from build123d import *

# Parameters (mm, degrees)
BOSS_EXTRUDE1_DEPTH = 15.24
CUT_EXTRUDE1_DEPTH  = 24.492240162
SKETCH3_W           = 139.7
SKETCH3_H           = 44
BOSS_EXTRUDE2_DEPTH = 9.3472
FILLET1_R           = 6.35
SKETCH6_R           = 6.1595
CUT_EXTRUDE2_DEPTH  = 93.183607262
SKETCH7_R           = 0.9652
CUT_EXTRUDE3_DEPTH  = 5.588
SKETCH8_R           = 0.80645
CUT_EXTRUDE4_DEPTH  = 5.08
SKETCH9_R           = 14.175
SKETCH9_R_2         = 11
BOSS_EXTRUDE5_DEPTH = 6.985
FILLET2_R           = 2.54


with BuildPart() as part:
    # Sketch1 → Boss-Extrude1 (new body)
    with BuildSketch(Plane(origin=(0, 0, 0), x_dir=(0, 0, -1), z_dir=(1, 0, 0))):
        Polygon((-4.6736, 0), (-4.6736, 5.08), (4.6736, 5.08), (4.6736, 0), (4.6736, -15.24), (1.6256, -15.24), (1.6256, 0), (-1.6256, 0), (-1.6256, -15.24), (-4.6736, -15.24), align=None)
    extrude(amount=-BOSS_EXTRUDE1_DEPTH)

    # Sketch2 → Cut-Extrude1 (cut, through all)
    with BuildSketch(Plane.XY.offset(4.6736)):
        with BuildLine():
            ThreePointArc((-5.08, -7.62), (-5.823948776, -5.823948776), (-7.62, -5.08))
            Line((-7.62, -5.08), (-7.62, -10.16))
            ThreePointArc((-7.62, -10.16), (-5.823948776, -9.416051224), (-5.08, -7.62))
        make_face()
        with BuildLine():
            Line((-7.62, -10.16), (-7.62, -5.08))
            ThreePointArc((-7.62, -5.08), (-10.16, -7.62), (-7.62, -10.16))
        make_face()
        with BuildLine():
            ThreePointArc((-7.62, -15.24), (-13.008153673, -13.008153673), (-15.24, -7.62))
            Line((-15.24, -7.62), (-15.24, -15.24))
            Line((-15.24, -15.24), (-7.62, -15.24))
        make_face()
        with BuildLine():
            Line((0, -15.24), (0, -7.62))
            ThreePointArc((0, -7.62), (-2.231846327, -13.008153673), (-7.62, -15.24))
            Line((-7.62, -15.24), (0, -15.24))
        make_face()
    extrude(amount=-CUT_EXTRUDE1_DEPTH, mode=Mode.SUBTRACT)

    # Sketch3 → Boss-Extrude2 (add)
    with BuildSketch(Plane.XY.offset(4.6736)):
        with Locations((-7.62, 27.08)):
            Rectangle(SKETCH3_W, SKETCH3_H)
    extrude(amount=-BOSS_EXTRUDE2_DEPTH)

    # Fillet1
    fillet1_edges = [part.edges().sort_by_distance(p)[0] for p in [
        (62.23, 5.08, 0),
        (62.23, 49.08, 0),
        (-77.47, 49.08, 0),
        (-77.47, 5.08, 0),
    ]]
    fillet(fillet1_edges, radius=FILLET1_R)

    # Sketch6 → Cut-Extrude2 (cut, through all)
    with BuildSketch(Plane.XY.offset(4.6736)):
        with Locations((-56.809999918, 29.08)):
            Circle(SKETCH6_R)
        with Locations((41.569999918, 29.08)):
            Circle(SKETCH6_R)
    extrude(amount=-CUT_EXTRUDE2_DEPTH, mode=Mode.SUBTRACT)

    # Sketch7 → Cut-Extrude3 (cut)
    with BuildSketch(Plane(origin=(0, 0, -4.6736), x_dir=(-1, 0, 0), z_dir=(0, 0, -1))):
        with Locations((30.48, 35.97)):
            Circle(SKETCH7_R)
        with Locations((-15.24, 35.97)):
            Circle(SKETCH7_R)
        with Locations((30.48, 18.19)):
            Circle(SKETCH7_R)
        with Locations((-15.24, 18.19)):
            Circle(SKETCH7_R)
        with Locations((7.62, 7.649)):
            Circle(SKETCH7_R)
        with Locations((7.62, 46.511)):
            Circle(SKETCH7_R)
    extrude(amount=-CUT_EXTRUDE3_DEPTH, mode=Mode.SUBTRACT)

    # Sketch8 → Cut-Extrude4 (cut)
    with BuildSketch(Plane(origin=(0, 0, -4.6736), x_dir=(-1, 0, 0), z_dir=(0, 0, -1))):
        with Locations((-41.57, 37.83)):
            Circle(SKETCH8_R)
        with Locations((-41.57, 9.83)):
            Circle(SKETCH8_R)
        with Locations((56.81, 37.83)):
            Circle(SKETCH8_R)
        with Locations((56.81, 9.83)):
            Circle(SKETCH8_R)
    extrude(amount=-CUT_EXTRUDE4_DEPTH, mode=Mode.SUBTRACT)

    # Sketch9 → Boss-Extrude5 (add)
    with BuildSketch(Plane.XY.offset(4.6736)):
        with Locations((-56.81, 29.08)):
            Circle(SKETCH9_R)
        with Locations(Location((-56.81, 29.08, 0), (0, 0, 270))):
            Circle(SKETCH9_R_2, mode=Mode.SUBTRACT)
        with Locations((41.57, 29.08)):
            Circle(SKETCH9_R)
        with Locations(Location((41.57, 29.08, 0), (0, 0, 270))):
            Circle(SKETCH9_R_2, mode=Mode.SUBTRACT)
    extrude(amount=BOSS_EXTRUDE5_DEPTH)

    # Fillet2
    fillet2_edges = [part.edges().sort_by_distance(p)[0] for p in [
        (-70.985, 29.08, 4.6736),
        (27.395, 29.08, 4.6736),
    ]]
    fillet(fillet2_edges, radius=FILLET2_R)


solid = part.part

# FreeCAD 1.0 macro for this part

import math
import FreeCAD as App
import Part
import Sketcher
from FreeCAD import Vector
Q = App.Units.Quantity


def edges_at(feature, points):
    """Names of the edges that pass closest to the given points."""
    edges = feature.Shape.Edges
    near = lambda p: min(range(len(edges)), key=lambda i: edges[i].distToShape(Part.Vertex(*p))[0])
    return sorted({f"Edge{near(p) + 1}" for p in points})


def add_polygon(sketch, points):
    """Adds a closed chain of lines whose ends are joined by coincident constraints."""
    first, n = sketch.GeometryCount, len(points)
    for a, b in zip(points, points[1:] + points[:1]):
        sketch.addGeometry(Part.LineSegment(App.Vector(*a, 0), App.Vector(*b, 0)), False)
    for i in range(n):
        sketch.addConstraint(Sketcher.Constraint("Coincident", first + i, 2, first + (i + 1) % n, 1))

doc = App.newDocument("Part")
body = doc.addObject("PartDesign::Body", "Body")

# Sketch on YZ plane
sketch1 = body.newObject("Sketcher::SketchObject", "Sketch")
sketch1.AttachmentSupport = (doc.getObject("YZ_Plane"), [""])
sketch1.MapMode = "FlatFace"
add_polygon(sketch1, [(5.08, 4.6736), (-15.24, 4.6736), (-15.24, 1.6256), (0, 1.6256), (0, -1.6256), (-15.24, -1.6256), (-15.24, -4.6736), (5.08, -4.6736)])  # lines 0-7
sketch1.addConstraint(Sketcher.Constraint("Horizontal", 0))
sketch1.addConstraint(Sketcher.Constraint("Vertical", 1))
sketch1.addConstraint(Sketcher.Constraint("Horizontal", 2))
sketch1.addConstraint(Sketcher.Constraint("Vertical", 3))
sketch1.addConstraint(Sketcher.Constraint("Horizontal", 4))
sketch1.addConstraint(Sketcher.Constraint("Vertical", 5))
sketch1.addConstraint(Sketcher.Constraint("Horizontal", 6))
sketch1.addConstraint(Sketcher.Constraint("Vertical", 7))
sketch1.addConstraint(Sketcher.Constraint("Symmetric", 2, 2, 3, 2, -1, 1))
sketch1.addConstraint(Sketcher.Constraint("Symmetric", 0, 2, 5, 2, -1))
sketch1.addConstraint(Sketcher.Constraint("DistanceX", 0, 2, 0, 1, Q("0.8 in")))
sketch1.addConstraint(Sketcher.Constraint("DistanceX", 2, 1, 2, 2, Q("0.6 in")))
sketch1.addConstraint(Sketcher.Constraint("DistanceY", 1, 2, 1, 1, Q("0.12 in")))
sketch1.addConstraint(Sketcher.Constraint("DistanceY", 3, 2, 3, 1, Q("0.128 in")))
pad1 = body.newObject("PartDesign::Pad", "Pad")
pad1.Profile = sketch1
pad1.Length = Q("0.6 in")
pad1.Reversed = True

# Sketch on XY plane
sketch2 = body.newObject("Sketcher::SketchObject", "Sketch001")
sketch2.AttachmentSupport = (doc.getObject("XY_Plane"), [""])
sketch2.MapMode = "FlatFace"
sketch2.AttachmentOffset = App.Placement(Vector(0, 0, 0.184 * 25.4), App.Rotation())
sketch2.addGeometry(Part.ArcOfCircle(Part.Circle(Vector(-7.62, -7.62, 0), Vector(0, 0, 1), 2.54), math.radians(0), math.radians(90)), False)
sketch2.addGeometry(Part.ArcOfCircle(Part.Circle(Vector(-7.62, -7.62, 0), Vector(0, 0, 1), 2.54), math.radians(90), math.radians(270)), False)
sketch2.addGeometry(Part.ArcOfCircle(Part.Circle(Vector(-7.62, -7.62, 0), Vector(0, 0, 1), 2.54), math.radians(-90), math.radians(0)), False)
sketch2.addGeometry(Part.ArcOfCircle(Part.Circle(Vector(-7.62, -7.62, 0), Vector(0, 0, 1), 7.62), math.radians(180), math.radians(270)), False)
sketch2.addGeometry(Part.LineSegment(Vector(-15.24, -7.62, 0), Vector(-15.24, -15.24, 0)), False)
sketch2.addGeometry(Part.LineSegment(Vector(-15.24, -15.24, 0), Vector(-7.62, -15.24, 0)), False)
sketch2.addGeometry(Part.LineSegment(Vector(0, -15.24, 0), Vector(0, -7.62, 0)), False)
sketch2.addGeometry(Part.ArcOfCircle(Part.Circle(Vector(-7.62, -7.62, 0), Vector(0, 0, 1), 7.62), math.radians(-90), math.radians(0)), False)
sketch2.addGeometry(Part.LineSegment(Vector(-7.62, -15.24, 0), Vector(0, -15.24, 0)), False)
sketch2.addConstraint(Sketcher.Constraint("Tangent", 0, 2, 1, 1))
sketch2.addConstraint(Sketcher.Constraint("Tangent", 1, 2, 2, 1))
sketch2.addConstraint(Sketcher.Constraint("Tangent", 2, 2, 0, 1))
sketch2.addConstraint(Sketcher.Constraint("Tangent", 3, 1, 4, 1))
sketch2.addConstraint(Sketcher.Constraint("Coincident", 4, 2, 5, 1))
sketch2.addConstraint(Sketcher.Constraint("Tangent", 5, 2, 3, 2))
sketch2.addConstraint(Sketcher.Constraint("Tangent", 6, 2, 7, 2))
sketch2.addConstraint(Sketcher.Constraint("Tangent", 7, 1, 8, 1))
sketch2.addConstraint(Sketcher.Constraint("Coincident", 8, 2, 6, 1))
sketch2.addConstraint(Sketcher.Constraint("Vertical", 4))
sketch2.addConstraint(Sketcher.Constraint("Horizontal", 5))
sketch2.addConstraint(Sketcher.Constraint("Vertical", 6))
sketch2.addConstraint(Sketcher.Constraint("Horizontal", 8))
sketch2.addConstraint(Sketcher.Constraint("Coincident", 3, 3, 0, 3))
sketch2.addConstraint(Sketcher.Constraint("Coincident", 7, 3, 0, 3))
sketch2.addConstraint(Sketcher.Constraint("Equal", 3, 7))
sketch2.addConstraint(Sketcher.Constraint("PointOnObject", 6, 2, -2))
sketch2.addConstraint(Sketcher.Constraint("Horizontal", 7, 3, 2, 2))
sketch2.addConstraint(Sketcher.Constraint("Vertical", 7, 3, 0, 2))
sketch2.addConstraint(Sketcher.Constraint("Vertical", 0, 2, 1, 2))
sketch2.addConstraint(Sketcher.Constraint("Radius", 0, Q("0.1 in")))
sketch2.addConstraint(Sketcher.Constraint("Radius", 3, Q("0.3 in")))
sketch2.addConstraint(Sketcher.Constraint("DistanceY", 0, 3, -1, 1, Q("0.3 in")))
pocket1 = body.newObject("PartDesign::Pocket", "Pocket")
pocket1.Profile = sketch2
pocket1.Type = "ThroughAll"

# Sketch on XY plane
sketch3 = body.newObject("Sketcher::SketchObject", "Sketch002")
sketch3.AttachmentSupport = (doc.getObject("XY_Plane"), [""])
sketch3.MapMode = "FlatFace"
sketch3.AttachmentOffset = App.Placement(Vector(0, 0, 0.184 * 25.4), App.Rotation())
add_polygon(sketch3, [(-77.47, 49.08), (-77.47, 5.08), (62.23, 5.08), (62.23, 49.08)])  # lines 0-3
sketch3.addConstraint(Sketcher.Constraint("Vertical", 0))
sketch3.addConstraint(Sketcher.Constraint("Horizontal", 1))
sketch3.addConstraint(Sketcher.Constraint("Vertical", 2))
sketch3.addConstraint(Sketcher.Constraint("Horizontal", 3))
sketch3.addConstraint(Sketcher.Constraint("DistanceX", 1, 1, 1, 2, Q("5.5 in")))
sketch3.addConstraint(Sketcher.Constraint("DistanceY", -1, 1, 0, 2, Q("0.2 in")))
sketch3.addConstraint(Sketcher.Constraint("DistanceX", 0, 2, -1, 1, Q("3.05 in")))
sketch3.addConstraint(Sketcher.Constraint("DistanceY", 0, 2, 0, 1, Q("44 mm")))
pad2 = body.newObject("PartDesign::Pad", "Pad001")
pad2.Profile = sketch3
pad2.Length = Q("0.368 in")
pad2.Reversed = True
doc.recompute()

fillet = body.newObject("PartDesign::Fillet", "Fillet")
fillet.Base = (pad2, edges_at(pad2, [
    (62.23, 5.08, 0),
    (62.23, 49.08, 0),
    (-77.47, 49.08, 0),
    (-77.47, 5.08, 0),
]))
fillet.Radius = Q("0.25 in")

# Sketch on XY plane
sketch4 = body.newObject("Sketcher::SketchObject", "Sketch003")
sketch4.AttachmentSupport = (doc.getObject("XY_Plane"), [""])
sketch4.MapMode = "FlatFace"
sketch4.AttachmentOffset = App.Placement(Vector(0, 0, 0.184 * 25.4), App.Rotation())
sketch4.addGeometry(Part.Circle(Vector(-56.81, 29.08, 0), Vector(0, 0, 1), 6.1595), False)
sketch4.addGeometry(Part.Circle(Vector(41.57, 29.08, 0), Vector(0, 0, 1), 6.1595), False)
sketch4.addConstraint(Sketcher.Constraint("Equal", 0, 1))
sketch4.addConstraint(Sketcher.Constraint("Horizontal", 0, 3, 1, 3))
sketch4.addConstraint(Sketcher.Constraint("Diameter", 0, Q("0.485 in")))
sketch4.addConstraint(Sketcher.Constraint("DistanceX", 0, 3, -1, 1, Q("56.81 mm")))
sketch4.addConstraint(Sketcher.Constraint("DistanceY", -1, 1, 0, 3, Q("29.08 mm")))
sketch4.addConstraint(Sketcher.Constraint("DistanceX", -1, 1, 1, 3, Q("41.57 mm")))
pocket2 = body.newObject("PartDesign::Pocket", "Pocket001")
pocket2.Profile = sketch4
pocket2.Type = "ThroughAll"

# Sketch on XY plane
sketch5 = body.newObject("Sketcher::SketchObject", "Sketch004")
sketch5.AttachmentSupport = (doc.getObject("XY_Plane"), [""])
sketch5.MapMode = "FlatFace"
sketch5.AttachmentOffset = App.Placement(Vector(0, 0, -0.184 * 25.4), App.Rotation())
sketch5.addGeometry(Part.Circle(Vector(-30.48, 35.97, 0), Vector(0, 0, 1), 0.9652), False)
sketch5.addGeometry(Part.Circle(Vector(15.24, 35.97, 0), Vector(0, 0, 1), 0.9652), False)
sketch5.addGeometry(Part.Circle(Vector(-30.48, 18.19, 0), Vector(0, 0, 1), 0.9652), False)
sketch5.addGeometry(Part.Circle(Vector(15.24, 18.19, 0), Vector(0, 0, 1), 0.9652), False)
sketch5.addGeometry(Part.Circle(Vector(-7.62, 7.649, 0), Vector(0, 0, 1), 0.9652), False)
sketch5.addGeometry(Part.Circle(Vector(-7.62, 46.511, 0), Vector(0, 0, 1), 0.9652), False)
sketch5.addConstraint(Sketcher.Constraint("Equal", 0, 1))
sketch5.addConstraint(Sketcher.Constraint("Equal", 1, 2))
sketch5.addConstraint(Sketcher.Constraint("Equal", 2, 3))
sketch5.addConstraint(Sketcher.Constraint("Equal", 3, 4))
sketch5.addConstraint(Sketcher.Constraint("Equal", 4, 5))
sketch5.addConstraint(Sketcher.Constraint("Horizontal", 0, 3, 1, 3))
sketch5.addConstraint(Sketcher.Constraint("Horizontal", 2, 3, 3, 3))
sketch5.addConstraint(Sketcher.Constraint("Vertical", 0, 3, 2, 3))
sketch5.addConstraint(Sketcher.Constraint("Vertical", 1, 3, 3, 3))
sketch5.addConstraint(Sketcher.Constraint("Vertical", 4, 3, 5, 3))
sketch5.addConstraint(Sketcher.Constraint("Diameter", 0, Q("0.076 in")))
sketch5.addConstraint(Sketcher.Constraint("DistanceX", 0, 3, -1, 1, Q("1.2 in")))
sketch5.addConstraint(Sketcher.Constraint("DistanceX", -1, 1, 1, 3, Q("0.6 in")))
sketch5.addConstraint(Sketcher.Constraint("DistanceX", 4, 3, -1, 1, Q("0.3 in")))
sketch5.addConstraint(Sketcher.Constraint("DistanceY", 2, 3, 0, 3, Q("0.7 in")))
sketch5.addConstraint(Sketcher.Constraint("DistanceY", 4, 3, 5, 3, Q("1.53 in")))
sketch5.addConstraint(Sketcher.Constraint("DistanceY", 4, 3, 2, 3, Q("0.415 in")))
sketch5.addConstraint(Sketcher.Constraint("DistanceY", -1, 1, 0, 3, Q("35.97 mm")))
pocket3 = body.newObject("PartDesign::Pocket", "Pocket002")
pocket3.Profile = sketch5
pocket3.Length = Q("0.22 in")
pocket3.Reversed = True

# Sketch on XY plane
sketch6 = body.newObject("Sketcher::SketchObject", "Sketch005")
sketch6.AttachmentSupport = (doc.getObject("XY_Plane"), [""])
sketch6.MapMode = "FlatFace"
sketch6.AttachmentOffset = App.Placement(Vector(0, 0, -0.184 * 25.4), App.Rotation())
sketch6.addGeometry(Part.Circle(Vector(41.57, 37.83, 0), Vector(0, 0, 1), 0.80645), False)
sketch6.addGeometry(Part.Circle(Vector(41.57, 9.83, 0), Vector(0, 0, 1), 0.80645), False)
sketch6.addGeometry(Part.Circle(Vector(-56.81, 37.83, 0), Vector(0, 0, 1), 0.80645), False)
sketch6.addGeometry(Part.Circle(Vector(-56.81, 9.83, 0), Vector(0, 0, 1), 0.80645), False)
sketch6.addConstraint(Sketcher.Constraint("Equal", 0, 1))
sketch6.addConstraint(Sketcher.Constraint("Equal", 1, 2))
sketch6.addConstraint(Sketcher.Constraint("Equal", 2, 3))
sketch6.addConstraint(Sketcher.Constraint("Horizontal", 0, 3, 2, 3))
sketch6.addConstraint(Sketcher.Constraint("Horizontal", 1, 3, 3, 3))
sketch6.addConstraint(Sketcher.Constraint("Vertical", 0, 3, 1, 3))
sketch6.addConstraint(Sketcher.Constraint("Vertical", 2, 3, 3, 3))
sketch6.addConstraint(Sketcher.Constraint("Diameter", 0, Q("0.0635 in")))
sketch6.addConstraint(Sketcher.Constraint("DistanceX", -1, 1, 0, 3, Q("41.57 mm")))
sketch6.addConstraint(Sketcher.Constraint("DistanceY", -1, 1, 0, 3, Q("37.83 mm")))
sketch6.addConstraint(Sketcher.Constraint("DistanceY", -1, 1, 1, 3, Q("9.83 mm")))
sketch6.addConstraint(Sketcher.Constraint("DistanceX", 2, 3, -1, 1, Q("56.81 mm")))
pocket4 = body.newObject("PartDesign::Pocket", "Pocket003")
pocket4.Profile = sketch6
pocket4.Length = Q("0.2 in")
pocket4.Reversed = True

# Sketch on XY plane
sketch7 = body.newObject("Sketcher::SketchObject", "Sketch006")
sketch7.AttachmentSupport = (doc.getObject("XY_Plane"), [""])
sketch7.MapMode = "FlatFace"
sketch7.AttachmentOffset = App.Placement(Vector(0, 0, 0.184 * 25.4), App.Rotation())
sketch7.addGeometry(Part.Circle(Vector(-56.81, 29.08, 0), Vector(0, 0, 1), 14.175), False)
sketch7.addGeometry(Part.Circle(Vector(-56.81, 29.08, 0), Vector(0, 0, 1), 11), False)
sketch7.addGeometry(Part.Circle(Vector(41.57, 29.08, 0), Vector(0, 0, 1), 14.175), False)
sketch7.addGeometry(Part.Circle(Vector(41.57, 29.08, 0), Vector(0, 0, 1), 11), False)
sketch7.addConstraint(Sketcher.Constraint("Coincident", 1, 3, 0, 3))
sketch7.addConstraint(Sketcher.Constraint("Coincident", 3, 3, 2, 3))
sketch7.addConstraint(Sketcher.Constraint("Equal", 0, 2))
sketch7.addConstraint(Sketcher.Constraint("Equal", 1, 3))
sketch7.addConstraint(Sketcher.Constraint("Horizontal", 1, 3, 2, 3))
sketch7.addConstraint(Sketcher.Constraint("Diameter", 0, Q("28.35 mm")))
sketch7.addConstraint(Sketcher.Constraint("Diameter", 1, Q("22 mm")))
sketch7.addConstraint(Sketcher.Constraint("DistanceX", 0, 3, -1, 1, Q("56.81 mm")))
sketch7.addConstraint(Sketcher.Constraint("DistanceY", -1, 1, 0, 3, Q("29.08 mm")))
sketch7.addConstraint(Sketcher.Constraint("DistanceX", -1, 1, 2, 3, Q("41.57 mm")))
pad3 = body.newObject("PartDesign::Pad", "Pad002")
pad3.Profile = sketch7
pad3.Length = Q("0.275 in")
doc.recompute()

fillet2 = body.newObject("PartDesign::Fillet", "Fillet001")
fillet2.Base = (pad3, edges_at(pad3, [(-70.985, 29.08, 4.674), (27.395, 29.08, 4.674)]))
fillet2.Radius = Q("0.1 in")

doc.recompute()
